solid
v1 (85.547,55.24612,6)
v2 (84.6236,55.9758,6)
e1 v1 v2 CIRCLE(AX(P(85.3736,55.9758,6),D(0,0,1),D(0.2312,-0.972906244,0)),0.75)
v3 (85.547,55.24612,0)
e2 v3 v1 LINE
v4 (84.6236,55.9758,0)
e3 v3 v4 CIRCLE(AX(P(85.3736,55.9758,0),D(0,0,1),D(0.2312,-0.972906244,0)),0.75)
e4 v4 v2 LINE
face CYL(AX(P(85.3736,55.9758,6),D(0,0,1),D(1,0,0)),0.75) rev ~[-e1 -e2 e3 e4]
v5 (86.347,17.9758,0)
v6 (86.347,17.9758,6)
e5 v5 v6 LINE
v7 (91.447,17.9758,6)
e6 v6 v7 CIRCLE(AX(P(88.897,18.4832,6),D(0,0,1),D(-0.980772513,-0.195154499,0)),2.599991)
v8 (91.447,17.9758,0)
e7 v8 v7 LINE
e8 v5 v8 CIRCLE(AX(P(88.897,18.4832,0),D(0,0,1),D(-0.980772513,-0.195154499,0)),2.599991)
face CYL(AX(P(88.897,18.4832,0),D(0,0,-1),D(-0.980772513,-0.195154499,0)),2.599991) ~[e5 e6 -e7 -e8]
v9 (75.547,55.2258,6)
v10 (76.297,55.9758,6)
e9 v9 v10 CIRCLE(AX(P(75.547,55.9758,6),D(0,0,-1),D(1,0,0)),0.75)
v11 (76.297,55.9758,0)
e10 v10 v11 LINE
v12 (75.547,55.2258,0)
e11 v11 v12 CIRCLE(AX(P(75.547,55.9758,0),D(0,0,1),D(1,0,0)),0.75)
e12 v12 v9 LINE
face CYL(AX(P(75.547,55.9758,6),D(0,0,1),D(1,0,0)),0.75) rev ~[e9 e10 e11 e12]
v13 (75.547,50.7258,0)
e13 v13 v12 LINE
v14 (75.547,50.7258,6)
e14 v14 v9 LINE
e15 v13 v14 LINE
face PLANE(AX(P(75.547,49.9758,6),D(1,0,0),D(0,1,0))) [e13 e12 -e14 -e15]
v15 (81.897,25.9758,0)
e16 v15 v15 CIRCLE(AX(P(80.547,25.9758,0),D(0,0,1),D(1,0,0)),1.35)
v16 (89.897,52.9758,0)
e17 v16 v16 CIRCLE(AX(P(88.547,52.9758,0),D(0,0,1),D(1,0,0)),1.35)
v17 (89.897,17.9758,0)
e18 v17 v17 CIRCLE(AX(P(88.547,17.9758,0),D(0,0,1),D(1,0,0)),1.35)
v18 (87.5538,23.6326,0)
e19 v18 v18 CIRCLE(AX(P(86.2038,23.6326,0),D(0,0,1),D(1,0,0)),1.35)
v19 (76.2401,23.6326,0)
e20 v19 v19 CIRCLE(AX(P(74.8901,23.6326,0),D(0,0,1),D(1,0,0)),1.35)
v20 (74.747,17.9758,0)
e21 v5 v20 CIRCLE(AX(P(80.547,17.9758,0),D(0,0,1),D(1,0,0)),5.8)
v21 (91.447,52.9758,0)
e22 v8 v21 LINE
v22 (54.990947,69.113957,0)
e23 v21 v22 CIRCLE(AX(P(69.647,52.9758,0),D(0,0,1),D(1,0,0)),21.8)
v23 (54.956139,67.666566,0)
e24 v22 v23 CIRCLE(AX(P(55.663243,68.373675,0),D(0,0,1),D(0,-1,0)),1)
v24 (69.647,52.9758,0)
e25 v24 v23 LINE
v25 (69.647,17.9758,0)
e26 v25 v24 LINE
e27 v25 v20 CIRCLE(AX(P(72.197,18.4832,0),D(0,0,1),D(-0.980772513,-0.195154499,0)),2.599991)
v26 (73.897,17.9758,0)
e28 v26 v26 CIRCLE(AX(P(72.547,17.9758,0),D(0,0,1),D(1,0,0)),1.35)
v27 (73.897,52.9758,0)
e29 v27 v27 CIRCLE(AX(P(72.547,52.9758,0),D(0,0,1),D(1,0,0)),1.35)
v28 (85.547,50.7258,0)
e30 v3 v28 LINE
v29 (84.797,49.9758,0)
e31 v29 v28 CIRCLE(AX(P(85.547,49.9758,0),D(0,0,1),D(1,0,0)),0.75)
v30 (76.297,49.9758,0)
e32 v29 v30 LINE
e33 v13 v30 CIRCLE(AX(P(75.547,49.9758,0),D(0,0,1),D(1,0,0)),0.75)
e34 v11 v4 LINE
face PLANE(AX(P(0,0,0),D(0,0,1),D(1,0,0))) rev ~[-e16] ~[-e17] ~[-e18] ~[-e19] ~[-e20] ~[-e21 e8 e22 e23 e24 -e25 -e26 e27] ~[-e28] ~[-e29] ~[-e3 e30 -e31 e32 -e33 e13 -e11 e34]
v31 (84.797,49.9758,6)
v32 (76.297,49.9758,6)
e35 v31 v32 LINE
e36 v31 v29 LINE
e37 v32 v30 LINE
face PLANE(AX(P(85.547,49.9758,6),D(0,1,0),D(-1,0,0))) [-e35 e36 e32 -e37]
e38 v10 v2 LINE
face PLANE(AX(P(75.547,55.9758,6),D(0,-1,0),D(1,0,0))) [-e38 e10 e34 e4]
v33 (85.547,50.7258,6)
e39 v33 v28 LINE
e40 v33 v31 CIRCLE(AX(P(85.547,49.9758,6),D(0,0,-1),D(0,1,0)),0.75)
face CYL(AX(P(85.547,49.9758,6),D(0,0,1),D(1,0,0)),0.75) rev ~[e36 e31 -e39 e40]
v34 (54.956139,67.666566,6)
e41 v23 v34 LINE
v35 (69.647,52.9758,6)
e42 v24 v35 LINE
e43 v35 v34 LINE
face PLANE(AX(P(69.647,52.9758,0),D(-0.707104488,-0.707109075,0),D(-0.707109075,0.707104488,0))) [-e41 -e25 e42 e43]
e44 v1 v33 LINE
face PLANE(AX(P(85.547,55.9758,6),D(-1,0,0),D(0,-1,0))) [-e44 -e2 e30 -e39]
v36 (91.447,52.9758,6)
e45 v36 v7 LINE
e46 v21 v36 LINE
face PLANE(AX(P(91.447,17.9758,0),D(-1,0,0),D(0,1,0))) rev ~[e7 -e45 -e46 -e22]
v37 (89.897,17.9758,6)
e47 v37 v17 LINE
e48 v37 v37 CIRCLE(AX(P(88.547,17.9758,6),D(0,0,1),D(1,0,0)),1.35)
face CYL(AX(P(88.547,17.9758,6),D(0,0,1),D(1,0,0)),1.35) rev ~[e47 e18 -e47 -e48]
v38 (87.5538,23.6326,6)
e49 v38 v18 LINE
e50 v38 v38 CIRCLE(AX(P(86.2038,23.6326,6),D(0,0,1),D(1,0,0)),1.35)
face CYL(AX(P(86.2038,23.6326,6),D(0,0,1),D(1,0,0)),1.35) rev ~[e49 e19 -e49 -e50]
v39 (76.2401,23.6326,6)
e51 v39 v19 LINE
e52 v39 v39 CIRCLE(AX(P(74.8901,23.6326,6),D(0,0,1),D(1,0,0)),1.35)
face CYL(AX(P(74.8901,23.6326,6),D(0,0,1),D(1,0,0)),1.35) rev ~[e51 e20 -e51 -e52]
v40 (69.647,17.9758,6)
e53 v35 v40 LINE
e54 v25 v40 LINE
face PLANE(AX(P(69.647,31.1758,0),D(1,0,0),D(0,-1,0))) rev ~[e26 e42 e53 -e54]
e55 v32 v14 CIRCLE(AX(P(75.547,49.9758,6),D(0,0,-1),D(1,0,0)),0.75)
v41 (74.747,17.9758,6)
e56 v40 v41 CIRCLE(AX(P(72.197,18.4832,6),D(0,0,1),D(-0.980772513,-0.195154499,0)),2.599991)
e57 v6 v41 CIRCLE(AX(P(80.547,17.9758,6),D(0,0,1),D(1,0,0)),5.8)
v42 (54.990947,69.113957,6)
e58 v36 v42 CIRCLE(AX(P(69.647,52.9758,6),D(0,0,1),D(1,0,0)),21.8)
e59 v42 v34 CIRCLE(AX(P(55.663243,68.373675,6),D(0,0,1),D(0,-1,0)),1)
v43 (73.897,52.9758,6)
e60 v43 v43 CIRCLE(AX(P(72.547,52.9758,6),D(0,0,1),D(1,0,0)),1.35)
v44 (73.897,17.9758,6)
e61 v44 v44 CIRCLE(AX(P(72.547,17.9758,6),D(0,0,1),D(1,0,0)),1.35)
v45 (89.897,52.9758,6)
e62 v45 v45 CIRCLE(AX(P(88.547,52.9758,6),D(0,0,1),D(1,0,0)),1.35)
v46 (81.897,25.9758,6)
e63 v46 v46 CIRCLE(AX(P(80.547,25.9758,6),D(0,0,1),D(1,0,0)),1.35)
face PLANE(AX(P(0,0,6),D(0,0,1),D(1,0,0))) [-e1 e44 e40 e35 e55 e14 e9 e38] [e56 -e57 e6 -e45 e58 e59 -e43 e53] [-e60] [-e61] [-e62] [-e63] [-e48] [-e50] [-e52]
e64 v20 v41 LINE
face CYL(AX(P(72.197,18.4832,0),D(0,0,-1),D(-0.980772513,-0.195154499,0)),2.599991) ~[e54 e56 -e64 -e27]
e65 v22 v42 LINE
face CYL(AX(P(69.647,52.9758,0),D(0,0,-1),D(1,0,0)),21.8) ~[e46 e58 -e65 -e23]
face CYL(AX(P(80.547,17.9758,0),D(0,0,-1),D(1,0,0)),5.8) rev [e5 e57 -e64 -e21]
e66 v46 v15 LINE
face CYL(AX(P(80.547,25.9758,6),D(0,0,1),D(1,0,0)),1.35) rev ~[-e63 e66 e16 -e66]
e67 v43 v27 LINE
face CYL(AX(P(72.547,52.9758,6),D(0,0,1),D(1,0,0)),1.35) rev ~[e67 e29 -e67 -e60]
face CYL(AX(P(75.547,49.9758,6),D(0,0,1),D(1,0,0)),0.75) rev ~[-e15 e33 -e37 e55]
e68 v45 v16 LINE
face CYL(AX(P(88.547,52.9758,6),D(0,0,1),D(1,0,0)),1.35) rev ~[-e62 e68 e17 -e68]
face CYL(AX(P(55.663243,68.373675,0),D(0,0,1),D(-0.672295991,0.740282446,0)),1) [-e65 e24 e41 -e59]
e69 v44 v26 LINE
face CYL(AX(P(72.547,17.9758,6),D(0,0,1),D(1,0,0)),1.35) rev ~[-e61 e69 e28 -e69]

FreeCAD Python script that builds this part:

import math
import FreeCAD as App
import Part
import Sketcher
Q = App.Units.Quantity


def edges_at(feature, points):
    """Names of the edges that pass closest to the given points."""
    edges = feature.Shape.Edges
    near = lambda p: min(range(len(edges)), key=lambda i: edges[i].distToShape(Part.Vertex(*p))[0])
    return sorted({f"Edge{near(p) + 1}" for p in points})


def add_polygon(sketch, points):
    """Adds a closed chain of lines whose ends are joined by coincident constraints."""
    first, n = sketch.GeometryCount, len(points)
    for a, b in zip(points, points[1:] + points[:1]):
        sketch.addGeometry(Part.LineSegment(App.Vector(*a, 0), App.Vector(*b, 0)), False)
    for i in range(n):
        sketch.addConstraint(Sketcher.Constraint("Coincident", first + i, 2, first + (i + 1) % n, 1))

doc = App.newDocument("Part")
params = doc.addObject("Spreadsheet::Sheet", "Params")
for row, (alias, value) in enumerate([
    ("sketch1_radius", "2.6 mm"),
    ("sketch1_diameter", "2.4 mm"),
    ("sketch1_radius2", "21.8 mm"),
    ("sketch1_radius3", "5.8 mm"),
    ("sketch1_height", "35 mm"),
    ("pad1_length", "6 mm"),
    ("sketch2_diameter", "2.7 mm"),
    ("pocket1_length", "6 mm"),
    ("fillet_radius", "1 mm"),
    ("sketch3_width", "10 mm"),
    ("sketch3_height", "6 mm"),
    ("pocket2_length", "6 mm"),
    ("sketch4_diameter", "2.7 mm"),
    ("pocket3_length", "6 mm"),
    ("sketch5_diameter", "1.5 mm"),
    ("pocket4_length", "10 mm"),
], start=1):
    params.set(f"A{row}", alias)
    params.set(f"B{row}", "=" + value)
    params.setAlias(f"B{row}", alias)

body = doc.addObject("PartDesign::Body", "Body")

sketch1 = body.newObject("Sketcher::SketchObject", "Sketch")
sketch1.AttachmentSupport = (doc.getObject("XY_Plane"), [""])
sketch1.MapMode = "FlatFace"
sketch1.addGeometry(Part.ArcOfCircle(Part.Circle(App.Vector(88.897, 18.4832, 0), App.Vector(0, 0, 1), 2.599991), math.radians(-168.746251), math.radians(-11.253749)), False)
sketch1.addGeometry(Part.LineSegment(App.Vector(91.447, 17.9758, 0), App.Vector(91.447, 52.9758, 0)), False)
sketch1.addGeometry(Part.ArcOfCircle(Part.Circle(App.Vector(69.647, 52.9758, 0), App.Vector(0, 0, 1), 21.8), math.radians(0), math.radians(135.000186)), False)
sketch1.addGeometry(Part.LineSegment(App.Vector(54.232, 68.3907, 0), App.Vector(69.647, 52.9758, 0)), False)
sketch1.addGeometry(Part.LineSegment(App.Vector(69.647, 52.9758, 0), App.Vector(69.647, 17.9758, 0)), False)
sketch1.addGeometry(Part.ArcOfCircle(Part.Circle(App.Vector(72.197, 18.4832, 0), App.Vector(0, 0, 1), 2.599991), math.radians(-168.746251), math.radians(-11.253749)), False)
sketch1.addGeometry(Part.ArcOfCircle(Part.Circle(App.Vector(80.547, 17.9758, 0), App.Vector(0, 0, 1), 5.8), math.radians(0), math.radians(180)), False)
sketch1.addGeometry(Part.Circle(App.Vector(88.547, 17.9758, 0), App.Vector(0, 0, 1), 1.2), False)
sketch1.addGeometry(Part.Circle(App.Vector(80.547, 25.9758, 0), App.Vector(0, 0, 1), 1.2), False)
sketch1.addGeometry(Part.Circle(App.Vector(72.547, 17.9758, 0), App.Vector(0, 0, 1), 1.2), False)
sketch1.addGeometry(Part.Circle(App.Vector(86.2038, 23.6326, 0), App.Vector(0, 0, 1), 1.2), False)
sketch1.addGeometry(Part.Circle(App.Vector(74.8901, 23.6326, 0), App.Vector(0, 0, 1), 1.2), False)
sketch1.addConstraint(Sketcher.Constraint("Coincident", 0, 2, 1, 1))
sketch1.addConstraint(Sketcher.Constraint("Tangent", 1, 2, 2, 1))
sketch1.addConstraint(Sketcher.Constraint("Coincident", 2, 2, 3, 1))
sketch1.addConstraint(Sketcher.Constraint("Coincident", 3, 2, 4, 1))
sketch1.addConstraint(Sketcher.Constraint("Coincident", 4, 2, 5, 1))
sketch1.addConstraint(Sketcher.Constraint("Coincident", 5, 2, 6, 2))
sketch1.addConstraint(Sketcher.Constraint("Coincident", 6, 1, 0, 1))
sketch1.addConstraint(Sketcher.Constraint("Vertical", 1))
sketch1.addConstraint(Sketcher.Constraint("Vertical", 4))
sketch1.addConstraint(Sketcher.Constraint("Coincident", 3, 2, 2, 3))
sketch1.addConstraint(Sketcher.Constraint("Equal", 0, 5))
sketch1.addConstraint(Sketcher.Constraint("Equal", 7, 8))
sketch1.addConstraint(Sketcher.Constraint("Equal", 8, 9))
sketch1.addConstraint(Sketcher.Constraint("Equal", 9, 10))
sketch1.addConstraint(Sketcher.Constraint("Equal", 10, 11))
sketch1.addConstraint(Sketcher.Constraint("Horizontal", 0, 3, 5, 3))
sketch1.addConstraint(Sketcher.Constraint("Horizontal", 6, 3, 7, 3))
sketch1.addConstraint(Sketcher.Constraint("Horizontal", 7, 3, 9, 3))
sketch1.addConstraint(Sketcher.Constraint("Horizontal", 10, 3, 11, 3))
sketch1.addConstraint(Sketcher.Constraint("Horizontal", 9, 3, 0, 2))
sketch1.addConstraint(Sketcher.Constraint("Horizontal", 0, 2, 4, 2))
sketch1.addConstraint(Sketcher.Constraint("Horizontal", 4, 2, 5, 2))
sketch1.addConstraint(Sketcher.Constraint("Horizontal", 5, 2, 6, 1))
sketch1.addConstraint(Sketcher.Constraint("Vertical", 6, 3, 8, 3))
sketch1.addConstraint(Sketcher.Constraint("Radius", 0, Q("2.6 mm")))
sketch1.addConstraint(Sketcher.Constraint("Diameter", 7, Q("2.4 mm")))
sketch1.addConstraint(Sketcher.Constraint("Radius", 2, Q("21.8 mm")))
sketch1.addConstraint(Sketcher.Constraint("Radius", 6, Q("5.8 mm")))
sketch1.addConstraint(Sketcher.Constraint("DistanceY", 1, 1, 1, 2, Q("35 mm")))
sketch1.addConstraint(Sketcher.Constraint("Angle", 3, Q("-44.9998 deg")))
sketch1.addConstraint(Sketcher.Constraint("DistanceX", 6, 3, 7, 3, Q("8 mm")))
sketch1.addConstraint(Sketcher.Constraint("DistanceY", 6, 3, 8, 3, Q("8 mm")))
sketch1.addConstraint(Sketcher.Constraint("DistanceX", 9, 3, 6, 3, Q("8 mm")))
sketch1.addConstraint(Sketcher.Constraint("DistanceX", -1, 1, 11, 3, Q("74.89 mm")))
sketch1.addConstraint(Sketcher.Constraint("DistanceX", -1, 1, 0, 3, Q("88.897 mm")))
sketch1.addConstraint(Sketcher.Constraint("DistanceY", 11, 3, 2, 2, Q("44.758 mm")))
sketch1.addConstraint(Sketcher.Constraint("DistanceY", -1, 1, 0, 3, Q("18.4832 mm")))
sketch1.addConstraint(Sketcher.Constraint("DistanceX", -1, 1, 10, 3, Q("86.2038 mm")))
sketch1.setExpression("Constraints[24]", "Params.sketch1_radius")
sketch1.setExpression("Constraints[25]", "Params.sketch1_diameter")
sketch1.setExpression("Constraints[26]", "Params.sketch1_radius2")
sketch1.setExpression("Constraints[27]", "Params.sketch1_radius3")
sketch1.setExpression("Constraints[28]", "Params.sketch1_height")
pad1 = body.newObject("PartDesign::Pad", "Pad")
pad1.Profile = sketch1
pad1.setExpression("Length", "Params.pad1_length")

sketch2 = body.newObject("Sketcher::SketchObject", "Sketch001")
sketch2.AttachmentSupport = (doc.getObject("XY_Plane"), [""])
sketch2.MapMode = "FlatFace"
sketch2.AttachmentOffset = App.Placement(App.Vector(0, 0, 6), App.Rotation())
sketch2.addGeometry(Part.Circle(App.Vector(88.547, 17.9758, 0), App.Vector(0, 0, 1), 1.35), False)
sketch2.addGeometry(Part.Circle(App.Vector(72.547, 17.9758, 0), App.Vector(0, 0, 1), 1.35), False)
sketch2.addGeometry(Part.Circle(App.Vector(80.547, 25.9758, 0), App.Vector(0, 0, 1), 1.35), False)
sketch2.addGeometry(Part.Circle(App.Vector(86.2038, 23.6326, 0), App.Vector(0, 0, 1), 1.35), False)
sketch2.addGeometry(Part.Circle(App.Vector(74.8901, 23.6326, 0), App.Vector(0, 0, 1), 1.35), False)
sketch2.addConstraint(Sketcher.Constraint("Equal", 0, 1))
sketch2.addConstraint(Sketcher.Constraint("Equal", 1, 2))
sketch2.addConstraint(Sketcher.Constraint("Equal", 2, 3))
sketch2.addConstraint(Sketcher.Constraint("Equal", 3, 4))
sketch2.addConstraint(Sketcher.Constraint("Horizontal", 0, 3, 1, 3))
sketch2.addConstraint(Sketcher.Constraint("Horizontal", 3, 3, 4, 3))
sketch2.addConstraint(Sketcher.Constraint("Diameter", 0, Q("2.7 mm")))
sketch2.addConstraint(Sketcher.Constraint("DistanceX", 1, 3, 0, 3, Q("16 mm")))
sketch2.addConstraint(Sketcher.Constraint("DistanceX", 2, 3, 0, 3, Q("8 mm")))
sketch2.addConstraint(Sketcher.Constraint("DistanceY", 0, 3, 2, 3, Q("8 mm")))
sketch2.addConstraint(Sketcher.Constraint("DistanceX", -1, 1, 4, 3, Q("74.89 mm")))
sketch2.addConstraint(Sketcher.Constraint("DistanceX", -1, 1, 0, 3, Q("88.547 mm")))
sketch2.addConstraint(Sketcher.Constraint("DistanceY", -1, 1, 0, 3, Q("17.9758 mm")))
sketch2.addConstraint(Sketcher.Constraint("DistanceX", -1, 1, 3, 3, Q("86.2038 mm")))
sketch2.addConstraint(Sketcher.Constraint("DistanceY", -1, 1, 3, 3, Q("23.6326 mm")))
sketch2.setExpression("Constraints[6]", "Params.sketch2_diameter")
pocket1 = body.newObject("PartDesign::Pocket", "Pocket")
pocket1.Profile = sketch2
pocket1.setExpression("Length", "Params.pocket1_length")
doc.recompute()

fillet = body.newObject("PartDesign::Fillet", "Fillet")
fillet.Base = (pocket1, edges_at(pocket1, [(54.232, 68.391, 3)]))
fillet.setExpression("Radius", "Params.fillet_radius")

sketch3 = body.newObject("Sketcher::SketchObject", "Sketch002")
sketch3.AttachmentSupport = (doc.getObject("XY_Plane"), [""])
sketch3.MapMode = "FlatFace"
sketch3.AttachmentOffset = App.Placement(App.Vector(0, 0, 6), App.Rotation())
add_polygon(sketch3, [(75.547, 49.9758), (85.547, 49.9758), (85.547, 55.9758), (75.547, 55.9758)])
sketch3.addConstraint(Sketcher.Constraint("Horizontal", 0))
sketch3.addConstraint(Sketcher.Constraint("Vertical", 1))
sketch3.addConstraint(Sketcher.Constraint("Horizontal", 2))
sketch3.addConstraint(Sketcher.Constraint("Vertical", 3))
sketch3.addConstraint(Sketcher.Constraint("DistanceX", 0, 1, 0, 2, Q("10 mm")))
sketch3.addConstraint(Sketcher.Constraint("DistanceY", 1, 1, 1, 2, Q("6 mm")))
sketch3.addConstraint(Sketcher.Constraint("DistanceX", -1, 1, 0, 2, Q("85.547 mm")))
sketch3.addConstraint(Sketcher.Constraint("DistanceY", -1, 1, 0, 2, Q("49.9758 mm")))
sketch3.setExpression("Constraints[8]", "Params.sketch3_width")
sketch3.setExpression("Constraints[9]", "Params.sketch3_height")
pocket2 = body.newObject("PartDesign::Pocket", "Pocket001")
pocket2.Profile = sketch3
pocket2.setExpression("Length", "Params.pocket2_length")

sketch4 = body.newObject("Sketcher::SketchObject", "Sketch003")
sketch4.AttachmentSupport = (doc.getObject("XY_Plane"), [""])
sketch4.MapMode = "FlatFace"
sketch4.AttachmentOffset = App.Placement(App.Vector(0, 0, 6), App.Rotation())
sketch4.addGeometry(Part.Circle(App.Vector(72.547, 52.9758, 0), App.Vector(0, 0, 1), 1.35), False)
sketch4.addGeometry(Part.Circle(App.Vector(88.547, 52.9758, 0), App.Vector(0, 0, 1), 1.35), False)
sketch4.addConstraint(Sketcher.Constraint("Equal", 0, 1))
sketch4.addConstraint(Sketcher.Constraint("Horizontal", 0, 3, 1, 3))
sketch4.addConstraint(Sketcher.Constraint("Diameter", 0, Q("2.7 mm")))
sketch4.addConstraint(Sketcher.Constraint("DistanceX", 0, 3, 1, 3, Q("16 mm")))
sketch4.addConstraint(Sketcher.Constraint("DistanceX", -1, 1, 0, 3, Q("72.547 mm")))
sketch4.addConstraint(Sketcher.Constraint("DistanceY", -1, 1, 0, 3, Q("52.9758 mm")))
sketch4.setExpression("Constraints[2]", "Params.sketch4_diameter")
pocket3 = body.newObject("PartDesign::Pocket", "Pocket002")
pocket3.Profile = sketch4
pocket3.setExpression("Length", "Params.pocket3_length")

sketch5 = body.newObject("Sketcher::SketchObject", "Sketch004")
sketch5.AttachmentSupport = (doc.getObject("XY_Plane"), [""])
sketch5.MapMode = "FlatFace"
sketch5.AttachmentOffset = App.Placement(App.Vector(0, 0, 6), App.Rotation())
sketch5.addGeometry(Part.Circle(App.Vector(85.3736, 55.9758, 0), App.Vector(0, 0, 1), 0.75), False)
sketch5.addGeometry(Part.LineSegment(App.Vector(85.547, 49.9758, 0), App.Vector(84.797, 49.9758, 0)), False)
sketch5.addGeometry(Part.ArcOfCircle(Part.Circle(App.Vector(85.547, 49.9758, 0), App.Vector(0, 0, 1), 0.75), math.radians(180), math.radians(450)), False)
sketch5.addGeometry(Part.LineSegment(App.Vector(85.547, 50.7258, 0), App.Vector(85.547, 49.9758, 0)), False)
sketch5.addGeometry(Part.Circle(App.Vector(75.547, 49.9758, 0), App.Vector(0, 0, 1), 0.75), False)
sketch5.addGeometry(Part.Circle(App.Vector(75.547, 55.9758, 0), App.Vector(0, 0, 1), 0.75), False)
sketch5.addConstraint(Sketcher.Constraint("Coincident", 1, 2, 2, 1))
sketch5.addConstraint(Sketcher.Constraint("Coincident", 2, 2, 3, 1))
sketch5.addConstraint(Sketcher.Constraint("Coincident", 3, 2, 1, 1))
sketch5.addConstraint(Sketcher.Constraint("Horizontal", 1))
sketch5.addConstraint(Sketcher.Constraint("Vertical", 3))
sketch5.addConstraint(Sketcher.Constraint("Coincident", 3, 2, 2, 3))
sketch5.addConstraint(Sketcher.Constraint("Equal", 0, 2))
sketch5.addConstraint(Sketcher.Constraint("Equal", 2, 4))
sketch5.addConstraint(Sketcher.Constraint("Equal", 4, 5))
sketch5.addConstraint(Sketcher.Constraint("Horizontal", 2, 3, 4, 3))
sketch5.addConstraint(Sketcher.Constraint("Horizontal", 0, 3, 5, 3))
sketch5.addConstraint(Sketcher.Constraint("Vertical", 4, 3, 5, 3))
sketch5.addConstraint(Sketcher.Constraint("Diameter", 0, Q("1.5 mm")))
sketch5.addConstraint(Sketcher.Constraint("DistanceY", 2, 3, 0, 3, Q("6 mm")))
sketch5.addConstraint(Sketcher.Constraint("DistanceX", 4, 3, 2, 3, Q("10 mm")))
sketch5.addConstraint(Sketcher.Constraint("DistanceX", -1, 1, 2, 3, Q("85.547 mm")))
sketch5.addConstraint(Sketcher.Constraint("DistanceX", -1, 1, 0, 3, Q("85.3736 mm")))
sketch5.addConstraint(Sketcher.Constraint("DistanceY", -1, 1, 0, 3, Q("55.9758 mm")))
sketch5.setExpression("Constraints[12]", "Params.sketch5_diameter")
pocket4 = body.newObject("PartDesign::Pocket", "Pocket003")
pocket4.Profile = sketch5
pocket4.setExpression("Length", "Params.pocket4_length")

doc.recompute()
